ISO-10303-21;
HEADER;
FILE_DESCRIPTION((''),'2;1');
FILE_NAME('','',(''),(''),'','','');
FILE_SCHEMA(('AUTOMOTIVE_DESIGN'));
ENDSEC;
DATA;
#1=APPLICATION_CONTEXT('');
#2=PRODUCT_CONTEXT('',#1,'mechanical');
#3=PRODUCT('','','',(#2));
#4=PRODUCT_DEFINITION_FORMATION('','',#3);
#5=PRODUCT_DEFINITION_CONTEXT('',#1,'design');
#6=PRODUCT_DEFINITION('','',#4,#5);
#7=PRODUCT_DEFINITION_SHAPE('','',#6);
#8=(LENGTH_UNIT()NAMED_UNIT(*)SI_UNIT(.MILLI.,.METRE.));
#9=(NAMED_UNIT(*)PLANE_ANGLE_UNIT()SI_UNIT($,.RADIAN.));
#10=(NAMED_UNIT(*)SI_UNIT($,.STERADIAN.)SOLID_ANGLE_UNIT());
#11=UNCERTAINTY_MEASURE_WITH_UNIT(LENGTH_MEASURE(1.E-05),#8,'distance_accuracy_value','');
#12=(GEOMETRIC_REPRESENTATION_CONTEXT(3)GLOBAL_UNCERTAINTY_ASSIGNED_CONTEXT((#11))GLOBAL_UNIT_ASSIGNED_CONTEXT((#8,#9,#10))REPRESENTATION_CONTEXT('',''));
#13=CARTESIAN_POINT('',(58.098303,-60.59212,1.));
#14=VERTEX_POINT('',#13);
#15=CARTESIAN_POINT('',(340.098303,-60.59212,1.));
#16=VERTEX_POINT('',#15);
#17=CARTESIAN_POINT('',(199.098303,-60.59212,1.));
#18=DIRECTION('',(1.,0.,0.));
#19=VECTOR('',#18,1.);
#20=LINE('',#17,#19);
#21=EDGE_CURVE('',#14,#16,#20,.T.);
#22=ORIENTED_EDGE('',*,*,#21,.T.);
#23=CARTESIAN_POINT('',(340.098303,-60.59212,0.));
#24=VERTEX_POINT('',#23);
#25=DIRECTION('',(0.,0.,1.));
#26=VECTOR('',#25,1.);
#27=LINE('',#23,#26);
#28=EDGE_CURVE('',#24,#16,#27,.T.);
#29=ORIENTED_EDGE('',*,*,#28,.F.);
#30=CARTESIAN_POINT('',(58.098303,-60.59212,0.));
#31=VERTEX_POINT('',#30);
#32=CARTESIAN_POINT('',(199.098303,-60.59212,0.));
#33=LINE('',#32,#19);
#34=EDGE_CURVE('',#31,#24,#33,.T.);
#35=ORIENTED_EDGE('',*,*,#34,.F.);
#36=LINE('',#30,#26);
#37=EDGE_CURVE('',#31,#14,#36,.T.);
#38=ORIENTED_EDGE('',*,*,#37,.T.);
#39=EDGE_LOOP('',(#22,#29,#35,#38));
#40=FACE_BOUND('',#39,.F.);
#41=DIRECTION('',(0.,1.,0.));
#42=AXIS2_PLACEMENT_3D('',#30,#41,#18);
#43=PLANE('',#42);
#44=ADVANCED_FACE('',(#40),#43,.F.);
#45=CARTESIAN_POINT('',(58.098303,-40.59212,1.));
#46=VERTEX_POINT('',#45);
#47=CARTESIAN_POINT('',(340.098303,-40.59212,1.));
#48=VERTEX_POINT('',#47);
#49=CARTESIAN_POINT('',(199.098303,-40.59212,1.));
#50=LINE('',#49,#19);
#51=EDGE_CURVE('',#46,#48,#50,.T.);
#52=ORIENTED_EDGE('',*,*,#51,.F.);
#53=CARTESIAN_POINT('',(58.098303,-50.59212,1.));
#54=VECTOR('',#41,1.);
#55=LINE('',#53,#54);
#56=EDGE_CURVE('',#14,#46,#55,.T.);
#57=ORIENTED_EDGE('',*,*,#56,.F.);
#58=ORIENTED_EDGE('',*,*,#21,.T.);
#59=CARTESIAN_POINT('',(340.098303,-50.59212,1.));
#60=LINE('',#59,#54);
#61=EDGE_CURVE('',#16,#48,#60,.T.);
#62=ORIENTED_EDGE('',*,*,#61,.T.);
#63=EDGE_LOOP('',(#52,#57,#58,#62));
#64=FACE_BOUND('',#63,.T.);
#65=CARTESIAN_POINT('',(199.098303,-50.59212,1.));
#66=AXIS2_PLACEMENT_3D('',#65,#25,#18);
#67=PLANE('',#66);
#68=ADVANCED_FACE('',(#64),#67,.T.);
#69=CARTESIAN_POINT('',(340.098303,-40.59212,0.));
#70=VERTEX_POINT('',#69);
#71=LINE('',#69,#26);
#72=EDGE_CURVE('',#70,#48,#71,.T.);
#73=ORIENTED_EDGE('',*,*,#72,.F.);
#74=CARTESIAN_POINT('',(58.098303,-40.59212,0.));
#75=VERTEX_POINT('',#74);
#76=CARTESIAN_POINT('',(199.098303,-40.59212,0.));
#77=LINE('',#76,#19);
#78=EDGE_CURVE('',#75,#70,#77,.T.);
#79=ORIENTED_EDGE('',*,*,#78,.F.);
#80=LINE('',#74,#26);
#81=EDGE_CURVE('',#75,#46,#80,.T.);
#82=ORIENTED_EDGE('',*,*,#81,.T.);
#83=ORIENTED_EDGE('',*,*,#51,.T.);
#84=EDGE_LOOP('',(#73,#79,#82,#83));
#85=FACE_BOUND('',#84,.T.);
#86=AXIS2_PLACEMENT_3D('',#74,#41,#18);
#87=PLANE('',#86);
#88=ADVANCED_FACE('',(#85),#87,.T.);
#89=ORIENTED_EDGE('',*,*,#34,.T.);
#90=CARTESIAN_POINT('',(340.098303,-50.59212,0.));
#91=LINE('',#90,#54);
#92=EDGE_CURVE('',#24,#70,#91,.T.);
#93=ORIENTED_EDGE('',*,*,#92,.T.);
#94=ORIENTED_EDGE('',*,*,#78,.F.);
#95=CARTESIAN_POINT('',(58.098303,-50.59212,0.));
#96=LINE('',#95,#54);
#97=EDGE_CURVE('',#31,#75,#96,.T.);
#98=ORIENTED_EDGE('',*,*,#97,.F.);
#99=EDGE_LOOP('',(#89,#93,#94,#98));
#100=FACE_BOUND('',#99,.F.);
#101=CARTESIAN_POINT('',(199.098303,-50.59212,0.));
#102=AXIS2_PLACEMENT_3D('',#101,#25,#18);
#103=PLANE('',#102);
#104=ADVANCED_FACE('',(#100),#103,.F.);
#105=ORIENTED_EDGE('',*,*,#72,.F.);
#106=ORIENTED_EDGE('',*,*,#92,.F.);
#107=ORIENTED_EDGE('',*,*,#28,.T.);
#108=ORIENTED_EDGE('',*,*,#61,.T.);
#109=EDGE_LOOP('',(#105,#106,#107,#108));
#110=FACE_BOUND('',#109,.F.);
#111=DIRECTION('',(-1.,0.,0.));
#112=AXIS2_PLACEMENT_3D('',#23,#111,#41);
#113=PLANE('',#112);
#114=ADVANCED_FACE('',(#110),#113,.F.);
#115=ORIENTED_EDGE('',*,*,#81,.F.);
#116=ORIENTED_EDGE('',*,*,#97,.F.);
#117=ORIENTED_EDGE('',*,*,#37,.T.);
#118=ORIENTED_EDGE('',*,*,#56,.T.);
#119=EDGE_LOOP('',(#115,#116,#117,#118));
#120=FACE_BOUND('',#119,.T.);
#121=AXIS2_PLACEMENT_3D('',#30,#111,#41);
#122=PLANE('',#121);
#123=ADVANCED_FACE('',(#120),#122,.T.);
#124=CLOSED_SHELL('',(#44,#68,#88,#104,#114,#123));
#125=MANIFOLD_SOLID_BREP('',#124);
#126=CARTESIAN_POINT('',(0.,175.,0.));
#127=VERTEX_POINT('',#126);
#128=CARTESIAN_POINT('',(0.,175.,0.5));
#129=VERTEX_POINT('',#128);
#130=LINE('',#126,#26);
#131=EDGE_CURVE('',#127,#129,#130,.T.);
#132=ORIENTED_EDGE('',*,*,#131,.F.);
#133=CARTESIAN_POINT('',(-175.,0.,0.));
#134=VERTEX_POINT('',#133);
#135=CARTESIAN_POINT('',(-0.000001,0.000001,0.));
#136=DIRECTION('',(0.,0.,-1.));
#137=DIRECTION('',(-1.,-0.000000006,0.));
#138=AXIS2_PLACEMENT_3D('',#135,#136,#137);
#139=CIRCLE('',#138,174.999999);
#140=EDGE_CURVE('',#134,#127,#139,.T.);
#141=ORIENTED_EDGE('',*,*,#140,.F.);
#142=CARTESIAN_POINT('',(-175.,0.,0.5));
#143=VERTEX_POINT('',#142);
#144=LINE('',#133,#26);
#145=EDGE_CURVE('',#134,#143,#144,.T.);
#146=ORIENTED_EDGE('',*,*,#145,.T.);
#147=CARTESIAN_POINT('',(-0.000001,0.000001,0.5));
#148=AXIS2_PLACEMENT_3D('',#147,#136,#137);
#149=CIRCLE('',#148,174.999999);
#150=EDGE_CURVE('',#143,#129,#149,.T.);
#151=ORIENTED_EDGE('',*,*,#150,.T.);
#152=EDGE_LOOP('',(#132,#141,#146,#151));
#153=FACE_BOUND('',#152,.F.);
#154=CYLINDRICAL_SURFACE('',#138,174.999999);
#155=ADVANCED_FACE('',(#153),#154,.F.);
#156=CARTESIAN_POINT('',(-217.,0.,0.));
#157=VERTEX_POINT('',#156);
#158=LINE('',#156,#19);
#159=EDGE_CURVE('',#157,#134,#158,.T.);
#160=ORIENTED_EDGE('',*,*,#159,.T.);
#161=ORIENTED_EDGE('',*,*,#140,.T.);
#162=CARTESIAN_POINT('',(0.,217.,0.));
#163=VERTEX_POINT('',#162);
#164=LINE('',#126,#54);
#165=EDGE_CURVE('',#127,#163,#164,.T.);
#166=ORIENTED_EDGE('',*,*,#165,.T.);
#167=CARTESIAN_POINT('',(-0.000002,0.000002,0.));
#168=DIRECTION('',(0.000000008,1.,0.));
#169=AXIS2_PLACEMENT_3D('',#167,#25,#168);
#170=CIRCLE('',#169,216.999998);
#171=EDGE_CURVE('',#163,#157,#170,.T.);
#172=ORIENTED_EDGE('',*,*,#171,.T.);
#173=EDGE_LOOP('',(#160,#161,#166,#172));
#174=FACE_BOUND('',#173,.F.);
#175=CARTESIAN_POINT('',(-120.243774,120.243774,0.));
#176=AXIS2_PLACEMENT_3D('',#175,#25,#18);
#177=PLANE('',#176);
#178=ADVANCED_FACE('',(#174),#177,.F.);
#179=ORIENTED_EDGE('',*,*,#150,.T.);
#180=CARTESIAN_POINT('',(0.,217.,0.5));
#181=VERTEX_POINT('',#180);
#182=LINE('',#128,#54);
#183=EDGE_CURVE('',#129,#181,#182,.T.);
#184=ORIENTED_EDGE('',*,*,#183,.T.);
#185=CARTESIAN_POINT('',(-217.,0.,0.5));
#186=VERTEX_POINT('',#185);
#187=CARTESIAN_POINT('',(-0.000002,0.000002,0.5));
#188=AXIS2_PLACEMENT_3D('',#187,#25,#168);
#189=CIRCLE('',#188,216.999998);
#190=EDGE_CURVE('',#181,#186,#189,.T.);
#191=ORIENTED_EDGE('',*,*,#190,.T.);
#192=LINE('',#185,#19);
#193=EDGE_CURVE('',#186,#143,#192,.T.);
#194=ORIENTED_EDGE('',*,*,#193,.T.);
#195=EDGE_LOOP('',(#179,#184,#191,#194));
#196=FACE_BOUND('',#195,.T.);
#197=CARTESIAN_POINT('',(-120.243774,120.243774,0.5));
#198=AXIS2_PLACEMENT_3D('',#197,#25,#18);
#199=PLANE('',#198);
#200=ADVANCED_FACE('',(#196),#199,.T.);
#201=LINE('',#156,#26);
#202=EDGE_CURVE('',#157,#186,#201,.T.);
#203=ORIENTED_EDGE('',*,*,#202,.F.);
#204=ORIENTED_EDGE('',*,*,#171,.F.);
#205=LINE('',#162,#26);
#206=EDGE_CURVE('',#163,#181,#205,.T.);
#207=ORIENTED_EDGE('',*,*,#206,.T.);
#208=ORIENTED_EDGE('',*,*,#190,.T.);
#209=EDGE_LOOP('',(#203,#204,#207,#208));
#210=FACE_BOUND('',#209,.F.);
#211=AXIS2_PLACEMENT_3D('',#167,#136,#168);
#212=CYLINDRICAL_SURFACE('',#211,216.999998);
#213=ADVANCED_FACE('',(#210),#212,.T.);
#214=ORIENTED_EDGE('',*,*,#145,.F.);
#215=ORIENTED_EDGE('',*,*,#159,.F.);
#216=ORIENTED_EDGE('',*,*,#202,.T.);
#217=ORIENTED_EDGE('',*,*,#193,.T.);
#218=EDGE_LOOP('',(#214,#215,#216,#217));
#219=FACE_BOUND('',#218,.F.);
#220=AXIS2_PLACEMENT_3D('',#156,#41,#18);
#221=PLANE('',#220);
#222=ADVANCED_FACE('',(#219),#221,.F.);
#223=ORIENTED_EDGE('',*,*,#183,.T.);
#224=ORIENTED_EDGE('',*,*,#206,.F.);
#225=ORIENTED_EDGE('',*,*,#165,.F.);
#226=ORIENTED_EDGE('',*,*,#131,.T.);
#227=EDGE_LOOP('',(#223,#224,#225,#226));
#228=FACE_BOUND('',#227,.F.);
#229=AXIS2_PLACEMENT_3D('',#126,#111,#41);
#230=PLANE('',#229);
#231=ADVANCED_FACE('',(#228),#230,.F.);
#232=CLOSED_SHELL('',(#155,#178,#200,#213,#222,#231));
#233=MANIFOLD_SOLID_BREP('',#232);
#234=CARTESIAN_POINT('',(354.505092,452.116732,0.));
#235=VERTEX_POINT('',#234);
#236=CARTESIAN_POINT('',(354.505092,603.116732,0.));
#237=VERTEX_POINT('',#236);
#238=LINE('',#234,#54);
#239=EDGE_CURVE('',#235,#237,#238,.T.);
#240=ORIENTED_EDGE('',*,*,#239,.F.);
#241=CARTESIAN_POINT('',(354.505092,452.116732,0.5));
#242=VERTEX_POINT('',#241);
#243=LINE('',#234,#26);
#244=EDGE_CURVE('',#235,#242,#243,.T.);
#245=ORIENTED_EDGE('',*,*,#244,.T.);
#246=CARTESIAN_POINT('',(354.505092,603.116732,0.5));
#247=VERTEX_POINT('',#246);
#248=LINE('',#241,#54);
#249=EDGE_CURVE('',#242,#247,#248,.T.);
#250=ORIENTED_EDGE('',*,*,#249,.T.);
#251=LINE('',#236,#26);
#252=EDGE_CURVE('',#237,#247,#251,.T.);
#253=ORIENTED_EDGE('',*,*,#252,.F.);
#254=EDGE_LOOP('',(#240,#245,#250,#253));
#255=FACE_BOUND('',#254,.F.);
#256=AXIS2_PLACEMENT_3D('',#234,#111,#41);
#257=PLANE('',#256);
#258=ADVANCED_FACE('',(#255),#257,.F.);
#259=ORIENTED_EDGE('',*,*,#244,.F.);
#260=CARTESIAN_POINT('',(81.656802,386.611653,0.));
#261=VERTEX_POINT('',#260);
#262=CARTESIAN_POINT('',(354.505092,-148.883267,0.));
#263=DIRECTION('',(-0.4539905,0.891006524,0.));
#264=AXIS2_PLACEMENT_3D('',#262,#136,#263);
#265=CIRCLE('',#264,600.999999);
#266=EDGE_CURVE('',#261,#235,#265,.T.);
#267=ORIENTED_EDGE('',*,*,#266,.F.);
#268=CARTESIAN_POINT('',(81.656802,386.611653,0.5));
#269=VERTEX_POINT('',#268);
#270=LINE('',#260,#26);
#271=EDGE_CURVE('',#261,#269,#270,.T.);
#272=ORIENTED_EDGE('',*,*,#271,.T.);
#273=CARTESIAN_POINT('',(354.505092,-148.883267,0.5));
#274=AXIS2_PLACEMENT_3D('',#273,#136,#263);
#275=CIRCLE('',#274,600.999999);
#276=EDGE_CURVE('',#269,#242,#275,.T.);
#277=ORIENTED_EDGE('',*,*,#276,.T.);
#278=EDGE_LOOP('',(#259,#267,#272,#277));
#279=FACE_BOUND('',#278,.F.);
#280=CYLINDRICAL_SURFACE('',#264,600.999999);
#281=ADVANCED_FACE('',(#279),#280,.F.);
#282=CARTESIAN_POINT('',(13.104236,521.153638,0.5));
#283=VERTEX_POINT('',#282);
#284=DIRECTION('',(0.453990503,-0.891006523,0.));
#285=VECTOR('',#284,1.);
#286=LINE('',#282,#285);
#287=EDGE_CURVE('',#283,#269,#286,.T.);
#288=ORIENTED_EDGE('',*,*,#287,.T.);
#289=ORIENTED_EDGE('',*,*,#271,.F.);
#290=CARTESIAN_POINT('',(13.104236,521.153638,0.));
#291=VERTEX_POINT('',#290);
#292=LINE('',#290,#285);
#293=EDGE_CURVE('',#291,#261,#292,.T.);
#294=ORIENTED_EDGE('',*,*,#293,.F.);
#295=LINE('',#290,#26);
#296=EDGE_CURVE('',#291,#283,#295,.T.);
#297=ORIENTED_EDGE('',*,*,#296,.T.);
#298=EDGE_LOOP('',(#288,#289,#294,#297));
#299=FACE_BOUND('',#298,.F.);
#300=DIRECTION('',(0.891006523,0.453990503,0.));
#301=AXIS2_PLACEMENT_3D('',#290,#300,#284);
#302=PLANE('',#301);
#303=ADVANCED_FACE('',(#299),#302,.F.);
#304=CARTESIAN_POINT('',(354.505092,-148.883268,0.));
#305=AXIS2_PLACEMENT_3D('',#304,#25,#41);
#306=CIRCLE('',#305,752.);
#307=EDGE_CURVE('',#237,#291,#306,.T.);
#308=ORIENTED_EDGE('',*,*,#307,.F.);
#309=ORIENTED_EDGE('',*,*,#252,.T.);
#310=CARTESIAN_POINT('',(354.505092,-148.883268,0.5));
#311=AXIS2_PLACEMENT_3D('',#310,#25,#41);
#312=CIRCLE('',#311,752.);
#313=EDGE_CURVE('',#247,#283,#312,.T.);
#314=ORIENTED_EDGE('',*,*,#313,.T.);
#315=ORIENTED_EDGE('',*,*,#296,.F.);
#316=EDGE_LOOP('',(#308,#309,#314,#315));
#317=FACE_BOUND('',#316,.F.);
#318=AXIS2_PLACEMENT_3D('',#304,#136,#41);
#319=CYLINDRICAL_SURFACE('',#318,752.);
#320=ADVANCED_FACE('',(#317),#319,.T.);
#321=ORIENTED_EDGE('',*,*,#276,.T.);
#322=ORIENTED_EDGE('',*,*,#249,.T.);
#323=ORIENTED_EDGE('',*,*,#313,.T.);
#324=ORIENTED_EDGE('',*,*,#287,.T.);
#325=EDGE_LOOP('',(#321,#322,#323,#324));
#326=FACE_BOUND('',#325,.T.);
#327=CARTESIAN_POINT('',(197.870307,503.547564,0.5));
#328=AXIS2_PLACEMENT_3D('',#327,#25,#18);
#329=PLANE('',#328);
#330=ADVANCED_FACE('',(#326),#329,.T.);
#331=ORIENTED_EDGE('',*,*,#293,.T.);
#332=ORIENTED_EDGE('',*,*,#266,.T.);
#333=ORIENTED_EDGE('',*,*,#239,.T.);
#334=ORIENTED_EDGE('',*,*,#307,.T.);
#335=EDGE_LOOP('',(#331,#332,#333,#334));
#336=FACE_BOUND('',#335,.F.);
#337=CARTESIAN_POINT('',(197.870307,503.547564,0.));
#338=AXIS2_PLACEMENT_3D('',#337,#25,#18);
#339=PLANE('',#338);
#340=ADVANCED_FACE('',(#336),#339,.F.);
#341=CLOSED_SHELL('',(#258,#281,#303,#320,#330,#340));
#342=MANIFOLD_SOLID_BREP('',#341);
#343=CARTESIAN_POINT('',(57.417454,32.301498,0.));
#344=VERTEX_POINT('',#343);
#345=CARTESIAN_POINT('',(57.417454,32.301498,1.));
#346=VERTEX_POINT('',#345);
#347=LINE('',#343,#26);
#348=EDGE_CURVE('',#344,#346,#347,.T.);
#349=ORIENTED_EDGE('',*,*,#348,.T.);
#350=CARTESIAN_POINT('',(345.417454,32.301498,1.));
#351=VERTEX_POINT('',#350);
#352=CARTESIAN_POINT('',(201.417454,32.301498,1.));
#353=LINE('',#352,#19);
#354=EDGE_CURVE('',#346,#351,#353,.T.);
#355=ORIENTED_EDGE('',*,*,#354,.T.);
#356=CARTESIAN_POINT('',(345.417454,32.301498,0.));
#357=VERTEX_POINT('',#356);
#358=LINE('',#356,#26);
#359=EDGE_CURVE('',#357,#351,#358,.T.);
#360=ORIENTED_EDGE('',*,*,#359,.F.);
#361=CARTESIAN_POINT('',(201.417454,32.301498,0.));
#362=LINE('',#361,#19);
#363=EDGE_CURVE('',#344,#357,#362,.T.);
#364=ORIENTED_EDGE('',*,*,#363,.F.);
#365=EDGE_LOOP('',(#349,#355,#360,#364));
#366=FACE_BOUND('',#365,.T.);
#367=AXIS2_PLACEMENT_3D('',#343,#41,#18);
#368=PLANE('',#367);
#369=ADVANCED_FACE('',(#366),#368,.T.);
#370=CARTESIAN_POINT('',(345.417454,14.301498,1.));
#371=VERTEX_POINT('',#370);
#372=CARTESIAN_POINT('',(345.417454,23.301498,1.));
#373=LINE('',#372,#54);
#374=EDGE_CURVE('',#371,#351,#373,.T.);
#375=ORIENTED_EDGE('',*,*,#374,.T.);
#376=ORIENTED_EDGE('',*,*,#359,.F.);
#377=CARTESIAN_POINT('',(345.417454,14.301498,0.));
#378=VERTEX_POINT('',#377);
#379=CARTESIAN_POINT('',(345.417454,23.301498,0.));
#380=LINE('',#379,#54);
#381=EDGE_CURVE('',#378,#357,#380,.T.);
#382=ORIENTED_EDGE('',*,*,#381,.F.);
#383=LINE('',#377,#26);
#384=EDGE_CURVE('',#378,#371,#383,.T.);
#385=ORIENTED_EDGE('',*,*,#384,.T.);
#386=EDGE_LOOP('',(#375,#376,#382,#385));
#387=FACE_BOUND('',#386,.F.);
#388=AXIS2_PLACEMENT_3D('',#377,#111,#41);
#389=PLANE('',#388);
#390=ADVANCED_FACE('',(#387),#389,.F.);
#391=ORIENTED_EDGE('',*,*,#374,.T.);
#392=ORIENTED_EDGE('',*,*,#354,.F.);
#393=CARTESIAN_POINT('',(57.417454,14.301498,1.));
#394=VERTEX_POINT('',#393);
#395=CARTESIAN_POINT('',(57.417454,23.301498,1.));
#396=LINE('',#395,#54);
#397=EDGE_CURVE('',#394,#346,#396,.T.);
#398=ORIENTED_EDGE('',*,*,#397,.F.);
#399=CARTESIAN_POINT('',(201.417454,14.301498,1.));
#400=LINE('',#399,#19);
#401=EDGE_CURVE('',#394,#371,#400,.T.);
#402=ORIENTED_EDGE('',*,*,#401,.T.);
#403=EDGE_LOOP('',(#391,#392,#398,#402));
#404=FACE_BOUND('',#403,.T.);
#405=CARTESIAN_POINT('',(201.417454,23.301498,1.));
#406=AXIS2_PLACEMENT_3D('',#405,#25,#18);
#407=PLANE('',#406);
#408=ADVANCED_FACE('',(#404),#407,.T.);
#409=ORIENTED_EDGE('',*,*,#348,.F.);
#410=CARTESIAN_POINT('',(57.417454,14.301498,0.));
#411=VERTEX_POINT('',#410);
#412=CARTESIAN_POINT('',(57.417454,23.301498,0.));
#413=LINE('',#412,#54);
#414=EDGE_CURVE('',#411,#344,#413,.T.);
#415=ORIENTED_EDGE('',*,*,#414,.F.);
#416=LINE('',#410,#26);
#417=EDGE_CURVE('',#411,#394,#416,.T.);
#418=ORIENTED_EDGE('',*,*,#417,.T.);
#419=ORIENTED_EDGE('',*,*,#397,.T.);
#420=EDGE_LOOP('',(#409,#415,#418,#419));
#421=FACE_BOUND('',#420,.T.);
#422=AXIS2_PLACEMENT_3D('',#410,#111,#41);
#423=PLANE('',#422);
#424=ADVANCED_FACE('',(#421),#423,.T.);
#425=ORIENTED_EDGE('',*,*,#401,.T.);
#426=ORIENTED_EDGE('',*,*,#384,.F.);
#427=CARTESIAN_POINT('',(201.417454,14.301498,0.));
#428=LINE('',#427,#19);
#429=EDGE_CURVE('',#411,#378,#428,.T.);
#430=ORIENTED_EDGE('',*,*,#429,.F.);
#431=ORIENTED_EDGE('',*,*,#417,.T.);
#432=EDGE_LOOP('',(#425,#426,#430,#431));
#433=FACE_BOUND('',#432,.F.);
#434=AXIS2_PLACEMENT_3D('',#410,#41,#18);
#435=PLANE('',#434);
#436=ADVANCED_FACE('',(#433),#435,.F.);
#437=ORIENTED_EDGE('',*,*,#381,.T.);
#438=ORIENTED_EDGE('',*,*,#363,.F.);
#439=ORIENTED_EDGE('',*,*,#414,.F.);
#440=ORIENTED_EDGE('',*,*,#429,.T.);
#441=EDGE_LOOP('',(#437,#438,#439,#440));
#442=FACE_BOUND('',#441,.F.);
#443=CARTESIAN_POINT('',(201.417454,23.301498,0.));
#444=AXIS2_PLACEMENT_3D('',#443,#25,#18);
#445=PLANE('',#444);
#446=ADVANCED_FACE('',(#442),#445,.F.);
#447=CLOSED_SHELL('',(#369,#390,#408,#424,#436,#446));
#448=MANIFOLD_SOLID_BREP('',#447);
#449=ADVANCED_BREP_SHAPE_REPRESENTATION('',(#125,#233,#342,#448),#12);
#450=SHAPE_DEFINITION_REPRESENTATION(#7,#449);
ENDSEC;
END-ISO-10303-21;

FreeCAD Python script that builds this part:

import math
import FreeCAD as App
import Part
import Sketcher

V = App.Vector
Q = App.Units.Quantity

doc = App.newDocument("Part")
params = doc.addObject("Spreadsheet::Sheet", "Params")
for row, (alias, value) in enumerate([
    ("sketch1_radius", "174.999999 mm"),
    ("sketch1_radius2", "216.999998 mm"),
    ("pad1_length", "0.5 mm"),
    ("sketch2_width", "288 mm"),
    ("sketch2_width2", "282 mm"),
    ("sketch2_height", "18 mm"),
    ("sketch2_height2", "20 mm"),
    ("pad2_length", "1 mm"),
    ("sketch3_radius", "600.999999 mm"),
    ("sketch3_radius2", "752 mm"),
    ("pad3_length", "0.5 mm"),
], start=1):
    params.set(f"A{row}", alias)
    params.set(f"B{row}", "=" + value)
    params.setAlias(f"B{row}", alias)

body = doc.addObject("PartDesign::Body", "Body")

sketch1 = body.newObject("Sketcher::SketchObject", "Sketch")
sketch1.AttachmentSupport = (doc.getObject("XY_Plane"), [""])
sketch1.MapMode = "FlatFace"
sketch1.addGeometry([
    Part.ArcOfCircle(Part.Circle(V(0, 0, 0), V(0, 0, 1), 175), math.radians(90), math.radians(180)),
    Part.LineSegment(V(0, 175, 0), V(0, 217, 0)),
    Part.ArcOfCircle(Part.Circle(V(0, 0, 0), V(0, 0, 1), 217), math.radians(90), math.radians(180)),
    Part.LineSegment(V(-217, 0, 0), V(-175, 0, 0)),
], False)
sketch1.addConstraint([
    Sketcher.Constraint("Coincident", 0, 1, 1, 1),
    Sketcher.Constraint("Coincident", 1, 2, 2, 1),
    Sketcher.Constraint("Coincident", 2, 2, 3, 1),
    Sketcher.Constraint("Coincident", 3, 2, 0, 2),
    Sketcher.Constraint("Vertical", 1),
    Sketcher.Constraint("Horizontal", 3),
    Sketcher.Constraint("Coincident", 0, 3, -1, 1),
    Sketcher.Constraint("Coincident", 2, 3, -1, 1),
    Sketcher.Constraint("PointOnObject", 0, 1, -2),
    Sketcher.Constraint("PointOnObject", 2, 2, -1),
    Sketcher.Constraint("Radius", 0, 174.999999),
    Sketcher.Constraint("Radius", 2, 216.999998),
])
sketch1.setExpression("Constraints[10]", "Params.sketch1_radius")
sketch1.setExpression("Constraints[11]", "Params.sketch1_radius2")
pad1 = body.newObject("PartDesign::Pad", "Pad")
pad1.Profile = sketch1
pad1.setExpression("Length", "Params.pad1_length")
body2 = doc.addObject("PartDesign::Body", "Body001")
body2.AllowCompound = True

sketch2 = body2.newObject("Sketcher::SketchObject", "Sketch001")
sketch2.AttachmentSupport = (doc.getObject("XY_Plane001"), [""])
sketch2.MapMode = "FlatFace"
sketch2.addGeometry([
    Part.LineSegment(V(57, 32, 0), V(57, 14, 0)),
    Part.LineSegment(V(57, 14, 0), V(345, 14, 0)),
    Part.LineSegment(V(345, 14, 0), V(345, 32, 0)),
    Part.LineSegment(V(345, 32, 0), V(57, 32, 0)),
    Part.LineSegment(V(58, -41, 0), V(58, -61, 0)),
    Part.LineSegment(V(58, -61, 0), V(340, -61, 0)),
    Part.LineSegment(V(340, -61, 0), V(340, -41, 0)),
    Part.LineSegment(V(340, -41, 0), V(58, -41, 0)),
], False)
sketch2.addConstraint([
    Sketcher.Constraint("Coincident", 0, 2, 1, 1),
    Sketcher.Constraint("Coincident", 1, 2, 2, 1),
    Sketcher.Constraint("Coincident", 2, 2, 3, 1),
    Sketcher.Constraint("Coincident", 3, 2, 0, 1),
    Sketcher.Constraint("Coincident", 4, 2, 5, 1),
    Sketcher.Constraint("Coincident", 5, 2, 6, 1),
    Sketcher.Constraint("Coincident", 6, 2, 7, 1),
    Sketcher.Constraint("Coincident", 7, 2, 4, 1),
    Sketcher.Constraint("Vertical", 0),
    Sketcher.Constraint("Horizontal", 1),
    Sketcher.Constraint("Vertical", 2),
    Sketcher.Constraint("Horizontal", 3),
    Sketcher.Constraint("Vertical", 4),
    Sketcher.Constraint("Horizontal", 5),
    Sketcher.Constraint("Vertical", 6),
    Sketcher.Constraint("Horizontal", 7),
    Sketcher.Constraint("DistanceX", 1, 1, 1, 2, 288.0),
    Sketcher.Constraint("DistanceX", 5, 1, 5, 2, 282.0),
    Sketcher.Constraint("DistanceY", 0, 2, 0, 1, 18.0),
    Sketcher.Constraint("DistanceY", 4, 2, 4, 1, 20.0),
    Sketcher.Constraint("DistanceY", -1, 1, 2, 2, 32.301498),
    Sketcher.Constraint("DistanceY", 4, 2, -1, 1, 60.59212),
    Sketcher.Constraint("DistanceX", 0, 2, 4, 2, 0.680849),
    Sketcher.Constraint("DistanceX", -1, 1, 0, 2, 57.417454),
])
sketch2.setExpression("Constraints[16]", "Params.sketch2_width")
sketch2.setExpression("Constraints[17]", "Params.sketch2_width2")
sketch2.setExpression("Constraints[18]", "Params.sketch2_height")
sketch2.setExpression("Constraints[19]", "Params.sketch2_height2")
pad2 = body2.newObject("PartDesign::Pad", "Pad001")
pad2.Profile = sketch2
pad2.setExpression("Length", "Params.pad2_length")
body3 = doc.addObject("PartDesign::Body", "Body002")

sketch3 = body3.newObject("Sketcher::SketchObject", "Sketch002")
sketch3.AttachmentSupport = (doc.getObject("XY_Plane002"), [""])
sketch3.MapMode = "FlatFace"
sketch3.addGeometry([
    Part.ArcOfCircle(Part.Circle(V(355, -149, 0), V(0, 0, 1), 601), math.radians(90), math.radians(117)),
    Part.LineSegment(V(355, 452, 0), V(355, 603, 0)),
    Part.ArcOfCircle(Part.Circle(V(355, -149, 0), V(0, 0, 1), 752), math.radians(90), math.radians(117)),
    Part.LineSegment(V(13, 521, 0), V(82, 387, 0)),
], False)
sketch3.addConstraint([
    Sketcher.Constraint("Coincident", 0, 1, 1, 1),
    Sketcher.Constraint("Coincident", 1, 2, 2, 1),
    Sketcher.Constraint("Coincident", 2, 2, 3, 1),
    Sketcher.Constraint("Coincident", 3, 2, 0, 2),
    Sketcher.Constraint("Vertical", 1),
    Sketcher.Constraint("Coincident", 2, 3, 0, 3),
    Sketcher.Constraint("Radius", 0, 600.999999),
    Sketcher.Constraint("Radius", 2, 752.0),
    Sketcher.Constraint("Angle", 3, Q("-63 deg")),
    Sketcher.Constraint("DistanceX", -1, 1, 3, 2, 81.656802),
    Sketcher.Constraint("DistanceY", 2, 3, -1, 1, 148.883268),
    Sketcher.Constraint("DistanceX", -1, 1, 1, 2, 354.505092),
    Sketcher.Constraint("DistanceY", 3, 2, 0, 1, 65.505079),
])
sketch3.setExpression("Constraints[6]", "Params.sketch3_radius")
sketch3.setExpression("Constraints[7]", "Params.sketch3_radius2")
pad3 = body3.newObject("PartDesign::Pad", "Pad002")
pad3.Profile = sketch3
pad3.setExpression("Length", "Params.pad3_length")

doc.recompute()
